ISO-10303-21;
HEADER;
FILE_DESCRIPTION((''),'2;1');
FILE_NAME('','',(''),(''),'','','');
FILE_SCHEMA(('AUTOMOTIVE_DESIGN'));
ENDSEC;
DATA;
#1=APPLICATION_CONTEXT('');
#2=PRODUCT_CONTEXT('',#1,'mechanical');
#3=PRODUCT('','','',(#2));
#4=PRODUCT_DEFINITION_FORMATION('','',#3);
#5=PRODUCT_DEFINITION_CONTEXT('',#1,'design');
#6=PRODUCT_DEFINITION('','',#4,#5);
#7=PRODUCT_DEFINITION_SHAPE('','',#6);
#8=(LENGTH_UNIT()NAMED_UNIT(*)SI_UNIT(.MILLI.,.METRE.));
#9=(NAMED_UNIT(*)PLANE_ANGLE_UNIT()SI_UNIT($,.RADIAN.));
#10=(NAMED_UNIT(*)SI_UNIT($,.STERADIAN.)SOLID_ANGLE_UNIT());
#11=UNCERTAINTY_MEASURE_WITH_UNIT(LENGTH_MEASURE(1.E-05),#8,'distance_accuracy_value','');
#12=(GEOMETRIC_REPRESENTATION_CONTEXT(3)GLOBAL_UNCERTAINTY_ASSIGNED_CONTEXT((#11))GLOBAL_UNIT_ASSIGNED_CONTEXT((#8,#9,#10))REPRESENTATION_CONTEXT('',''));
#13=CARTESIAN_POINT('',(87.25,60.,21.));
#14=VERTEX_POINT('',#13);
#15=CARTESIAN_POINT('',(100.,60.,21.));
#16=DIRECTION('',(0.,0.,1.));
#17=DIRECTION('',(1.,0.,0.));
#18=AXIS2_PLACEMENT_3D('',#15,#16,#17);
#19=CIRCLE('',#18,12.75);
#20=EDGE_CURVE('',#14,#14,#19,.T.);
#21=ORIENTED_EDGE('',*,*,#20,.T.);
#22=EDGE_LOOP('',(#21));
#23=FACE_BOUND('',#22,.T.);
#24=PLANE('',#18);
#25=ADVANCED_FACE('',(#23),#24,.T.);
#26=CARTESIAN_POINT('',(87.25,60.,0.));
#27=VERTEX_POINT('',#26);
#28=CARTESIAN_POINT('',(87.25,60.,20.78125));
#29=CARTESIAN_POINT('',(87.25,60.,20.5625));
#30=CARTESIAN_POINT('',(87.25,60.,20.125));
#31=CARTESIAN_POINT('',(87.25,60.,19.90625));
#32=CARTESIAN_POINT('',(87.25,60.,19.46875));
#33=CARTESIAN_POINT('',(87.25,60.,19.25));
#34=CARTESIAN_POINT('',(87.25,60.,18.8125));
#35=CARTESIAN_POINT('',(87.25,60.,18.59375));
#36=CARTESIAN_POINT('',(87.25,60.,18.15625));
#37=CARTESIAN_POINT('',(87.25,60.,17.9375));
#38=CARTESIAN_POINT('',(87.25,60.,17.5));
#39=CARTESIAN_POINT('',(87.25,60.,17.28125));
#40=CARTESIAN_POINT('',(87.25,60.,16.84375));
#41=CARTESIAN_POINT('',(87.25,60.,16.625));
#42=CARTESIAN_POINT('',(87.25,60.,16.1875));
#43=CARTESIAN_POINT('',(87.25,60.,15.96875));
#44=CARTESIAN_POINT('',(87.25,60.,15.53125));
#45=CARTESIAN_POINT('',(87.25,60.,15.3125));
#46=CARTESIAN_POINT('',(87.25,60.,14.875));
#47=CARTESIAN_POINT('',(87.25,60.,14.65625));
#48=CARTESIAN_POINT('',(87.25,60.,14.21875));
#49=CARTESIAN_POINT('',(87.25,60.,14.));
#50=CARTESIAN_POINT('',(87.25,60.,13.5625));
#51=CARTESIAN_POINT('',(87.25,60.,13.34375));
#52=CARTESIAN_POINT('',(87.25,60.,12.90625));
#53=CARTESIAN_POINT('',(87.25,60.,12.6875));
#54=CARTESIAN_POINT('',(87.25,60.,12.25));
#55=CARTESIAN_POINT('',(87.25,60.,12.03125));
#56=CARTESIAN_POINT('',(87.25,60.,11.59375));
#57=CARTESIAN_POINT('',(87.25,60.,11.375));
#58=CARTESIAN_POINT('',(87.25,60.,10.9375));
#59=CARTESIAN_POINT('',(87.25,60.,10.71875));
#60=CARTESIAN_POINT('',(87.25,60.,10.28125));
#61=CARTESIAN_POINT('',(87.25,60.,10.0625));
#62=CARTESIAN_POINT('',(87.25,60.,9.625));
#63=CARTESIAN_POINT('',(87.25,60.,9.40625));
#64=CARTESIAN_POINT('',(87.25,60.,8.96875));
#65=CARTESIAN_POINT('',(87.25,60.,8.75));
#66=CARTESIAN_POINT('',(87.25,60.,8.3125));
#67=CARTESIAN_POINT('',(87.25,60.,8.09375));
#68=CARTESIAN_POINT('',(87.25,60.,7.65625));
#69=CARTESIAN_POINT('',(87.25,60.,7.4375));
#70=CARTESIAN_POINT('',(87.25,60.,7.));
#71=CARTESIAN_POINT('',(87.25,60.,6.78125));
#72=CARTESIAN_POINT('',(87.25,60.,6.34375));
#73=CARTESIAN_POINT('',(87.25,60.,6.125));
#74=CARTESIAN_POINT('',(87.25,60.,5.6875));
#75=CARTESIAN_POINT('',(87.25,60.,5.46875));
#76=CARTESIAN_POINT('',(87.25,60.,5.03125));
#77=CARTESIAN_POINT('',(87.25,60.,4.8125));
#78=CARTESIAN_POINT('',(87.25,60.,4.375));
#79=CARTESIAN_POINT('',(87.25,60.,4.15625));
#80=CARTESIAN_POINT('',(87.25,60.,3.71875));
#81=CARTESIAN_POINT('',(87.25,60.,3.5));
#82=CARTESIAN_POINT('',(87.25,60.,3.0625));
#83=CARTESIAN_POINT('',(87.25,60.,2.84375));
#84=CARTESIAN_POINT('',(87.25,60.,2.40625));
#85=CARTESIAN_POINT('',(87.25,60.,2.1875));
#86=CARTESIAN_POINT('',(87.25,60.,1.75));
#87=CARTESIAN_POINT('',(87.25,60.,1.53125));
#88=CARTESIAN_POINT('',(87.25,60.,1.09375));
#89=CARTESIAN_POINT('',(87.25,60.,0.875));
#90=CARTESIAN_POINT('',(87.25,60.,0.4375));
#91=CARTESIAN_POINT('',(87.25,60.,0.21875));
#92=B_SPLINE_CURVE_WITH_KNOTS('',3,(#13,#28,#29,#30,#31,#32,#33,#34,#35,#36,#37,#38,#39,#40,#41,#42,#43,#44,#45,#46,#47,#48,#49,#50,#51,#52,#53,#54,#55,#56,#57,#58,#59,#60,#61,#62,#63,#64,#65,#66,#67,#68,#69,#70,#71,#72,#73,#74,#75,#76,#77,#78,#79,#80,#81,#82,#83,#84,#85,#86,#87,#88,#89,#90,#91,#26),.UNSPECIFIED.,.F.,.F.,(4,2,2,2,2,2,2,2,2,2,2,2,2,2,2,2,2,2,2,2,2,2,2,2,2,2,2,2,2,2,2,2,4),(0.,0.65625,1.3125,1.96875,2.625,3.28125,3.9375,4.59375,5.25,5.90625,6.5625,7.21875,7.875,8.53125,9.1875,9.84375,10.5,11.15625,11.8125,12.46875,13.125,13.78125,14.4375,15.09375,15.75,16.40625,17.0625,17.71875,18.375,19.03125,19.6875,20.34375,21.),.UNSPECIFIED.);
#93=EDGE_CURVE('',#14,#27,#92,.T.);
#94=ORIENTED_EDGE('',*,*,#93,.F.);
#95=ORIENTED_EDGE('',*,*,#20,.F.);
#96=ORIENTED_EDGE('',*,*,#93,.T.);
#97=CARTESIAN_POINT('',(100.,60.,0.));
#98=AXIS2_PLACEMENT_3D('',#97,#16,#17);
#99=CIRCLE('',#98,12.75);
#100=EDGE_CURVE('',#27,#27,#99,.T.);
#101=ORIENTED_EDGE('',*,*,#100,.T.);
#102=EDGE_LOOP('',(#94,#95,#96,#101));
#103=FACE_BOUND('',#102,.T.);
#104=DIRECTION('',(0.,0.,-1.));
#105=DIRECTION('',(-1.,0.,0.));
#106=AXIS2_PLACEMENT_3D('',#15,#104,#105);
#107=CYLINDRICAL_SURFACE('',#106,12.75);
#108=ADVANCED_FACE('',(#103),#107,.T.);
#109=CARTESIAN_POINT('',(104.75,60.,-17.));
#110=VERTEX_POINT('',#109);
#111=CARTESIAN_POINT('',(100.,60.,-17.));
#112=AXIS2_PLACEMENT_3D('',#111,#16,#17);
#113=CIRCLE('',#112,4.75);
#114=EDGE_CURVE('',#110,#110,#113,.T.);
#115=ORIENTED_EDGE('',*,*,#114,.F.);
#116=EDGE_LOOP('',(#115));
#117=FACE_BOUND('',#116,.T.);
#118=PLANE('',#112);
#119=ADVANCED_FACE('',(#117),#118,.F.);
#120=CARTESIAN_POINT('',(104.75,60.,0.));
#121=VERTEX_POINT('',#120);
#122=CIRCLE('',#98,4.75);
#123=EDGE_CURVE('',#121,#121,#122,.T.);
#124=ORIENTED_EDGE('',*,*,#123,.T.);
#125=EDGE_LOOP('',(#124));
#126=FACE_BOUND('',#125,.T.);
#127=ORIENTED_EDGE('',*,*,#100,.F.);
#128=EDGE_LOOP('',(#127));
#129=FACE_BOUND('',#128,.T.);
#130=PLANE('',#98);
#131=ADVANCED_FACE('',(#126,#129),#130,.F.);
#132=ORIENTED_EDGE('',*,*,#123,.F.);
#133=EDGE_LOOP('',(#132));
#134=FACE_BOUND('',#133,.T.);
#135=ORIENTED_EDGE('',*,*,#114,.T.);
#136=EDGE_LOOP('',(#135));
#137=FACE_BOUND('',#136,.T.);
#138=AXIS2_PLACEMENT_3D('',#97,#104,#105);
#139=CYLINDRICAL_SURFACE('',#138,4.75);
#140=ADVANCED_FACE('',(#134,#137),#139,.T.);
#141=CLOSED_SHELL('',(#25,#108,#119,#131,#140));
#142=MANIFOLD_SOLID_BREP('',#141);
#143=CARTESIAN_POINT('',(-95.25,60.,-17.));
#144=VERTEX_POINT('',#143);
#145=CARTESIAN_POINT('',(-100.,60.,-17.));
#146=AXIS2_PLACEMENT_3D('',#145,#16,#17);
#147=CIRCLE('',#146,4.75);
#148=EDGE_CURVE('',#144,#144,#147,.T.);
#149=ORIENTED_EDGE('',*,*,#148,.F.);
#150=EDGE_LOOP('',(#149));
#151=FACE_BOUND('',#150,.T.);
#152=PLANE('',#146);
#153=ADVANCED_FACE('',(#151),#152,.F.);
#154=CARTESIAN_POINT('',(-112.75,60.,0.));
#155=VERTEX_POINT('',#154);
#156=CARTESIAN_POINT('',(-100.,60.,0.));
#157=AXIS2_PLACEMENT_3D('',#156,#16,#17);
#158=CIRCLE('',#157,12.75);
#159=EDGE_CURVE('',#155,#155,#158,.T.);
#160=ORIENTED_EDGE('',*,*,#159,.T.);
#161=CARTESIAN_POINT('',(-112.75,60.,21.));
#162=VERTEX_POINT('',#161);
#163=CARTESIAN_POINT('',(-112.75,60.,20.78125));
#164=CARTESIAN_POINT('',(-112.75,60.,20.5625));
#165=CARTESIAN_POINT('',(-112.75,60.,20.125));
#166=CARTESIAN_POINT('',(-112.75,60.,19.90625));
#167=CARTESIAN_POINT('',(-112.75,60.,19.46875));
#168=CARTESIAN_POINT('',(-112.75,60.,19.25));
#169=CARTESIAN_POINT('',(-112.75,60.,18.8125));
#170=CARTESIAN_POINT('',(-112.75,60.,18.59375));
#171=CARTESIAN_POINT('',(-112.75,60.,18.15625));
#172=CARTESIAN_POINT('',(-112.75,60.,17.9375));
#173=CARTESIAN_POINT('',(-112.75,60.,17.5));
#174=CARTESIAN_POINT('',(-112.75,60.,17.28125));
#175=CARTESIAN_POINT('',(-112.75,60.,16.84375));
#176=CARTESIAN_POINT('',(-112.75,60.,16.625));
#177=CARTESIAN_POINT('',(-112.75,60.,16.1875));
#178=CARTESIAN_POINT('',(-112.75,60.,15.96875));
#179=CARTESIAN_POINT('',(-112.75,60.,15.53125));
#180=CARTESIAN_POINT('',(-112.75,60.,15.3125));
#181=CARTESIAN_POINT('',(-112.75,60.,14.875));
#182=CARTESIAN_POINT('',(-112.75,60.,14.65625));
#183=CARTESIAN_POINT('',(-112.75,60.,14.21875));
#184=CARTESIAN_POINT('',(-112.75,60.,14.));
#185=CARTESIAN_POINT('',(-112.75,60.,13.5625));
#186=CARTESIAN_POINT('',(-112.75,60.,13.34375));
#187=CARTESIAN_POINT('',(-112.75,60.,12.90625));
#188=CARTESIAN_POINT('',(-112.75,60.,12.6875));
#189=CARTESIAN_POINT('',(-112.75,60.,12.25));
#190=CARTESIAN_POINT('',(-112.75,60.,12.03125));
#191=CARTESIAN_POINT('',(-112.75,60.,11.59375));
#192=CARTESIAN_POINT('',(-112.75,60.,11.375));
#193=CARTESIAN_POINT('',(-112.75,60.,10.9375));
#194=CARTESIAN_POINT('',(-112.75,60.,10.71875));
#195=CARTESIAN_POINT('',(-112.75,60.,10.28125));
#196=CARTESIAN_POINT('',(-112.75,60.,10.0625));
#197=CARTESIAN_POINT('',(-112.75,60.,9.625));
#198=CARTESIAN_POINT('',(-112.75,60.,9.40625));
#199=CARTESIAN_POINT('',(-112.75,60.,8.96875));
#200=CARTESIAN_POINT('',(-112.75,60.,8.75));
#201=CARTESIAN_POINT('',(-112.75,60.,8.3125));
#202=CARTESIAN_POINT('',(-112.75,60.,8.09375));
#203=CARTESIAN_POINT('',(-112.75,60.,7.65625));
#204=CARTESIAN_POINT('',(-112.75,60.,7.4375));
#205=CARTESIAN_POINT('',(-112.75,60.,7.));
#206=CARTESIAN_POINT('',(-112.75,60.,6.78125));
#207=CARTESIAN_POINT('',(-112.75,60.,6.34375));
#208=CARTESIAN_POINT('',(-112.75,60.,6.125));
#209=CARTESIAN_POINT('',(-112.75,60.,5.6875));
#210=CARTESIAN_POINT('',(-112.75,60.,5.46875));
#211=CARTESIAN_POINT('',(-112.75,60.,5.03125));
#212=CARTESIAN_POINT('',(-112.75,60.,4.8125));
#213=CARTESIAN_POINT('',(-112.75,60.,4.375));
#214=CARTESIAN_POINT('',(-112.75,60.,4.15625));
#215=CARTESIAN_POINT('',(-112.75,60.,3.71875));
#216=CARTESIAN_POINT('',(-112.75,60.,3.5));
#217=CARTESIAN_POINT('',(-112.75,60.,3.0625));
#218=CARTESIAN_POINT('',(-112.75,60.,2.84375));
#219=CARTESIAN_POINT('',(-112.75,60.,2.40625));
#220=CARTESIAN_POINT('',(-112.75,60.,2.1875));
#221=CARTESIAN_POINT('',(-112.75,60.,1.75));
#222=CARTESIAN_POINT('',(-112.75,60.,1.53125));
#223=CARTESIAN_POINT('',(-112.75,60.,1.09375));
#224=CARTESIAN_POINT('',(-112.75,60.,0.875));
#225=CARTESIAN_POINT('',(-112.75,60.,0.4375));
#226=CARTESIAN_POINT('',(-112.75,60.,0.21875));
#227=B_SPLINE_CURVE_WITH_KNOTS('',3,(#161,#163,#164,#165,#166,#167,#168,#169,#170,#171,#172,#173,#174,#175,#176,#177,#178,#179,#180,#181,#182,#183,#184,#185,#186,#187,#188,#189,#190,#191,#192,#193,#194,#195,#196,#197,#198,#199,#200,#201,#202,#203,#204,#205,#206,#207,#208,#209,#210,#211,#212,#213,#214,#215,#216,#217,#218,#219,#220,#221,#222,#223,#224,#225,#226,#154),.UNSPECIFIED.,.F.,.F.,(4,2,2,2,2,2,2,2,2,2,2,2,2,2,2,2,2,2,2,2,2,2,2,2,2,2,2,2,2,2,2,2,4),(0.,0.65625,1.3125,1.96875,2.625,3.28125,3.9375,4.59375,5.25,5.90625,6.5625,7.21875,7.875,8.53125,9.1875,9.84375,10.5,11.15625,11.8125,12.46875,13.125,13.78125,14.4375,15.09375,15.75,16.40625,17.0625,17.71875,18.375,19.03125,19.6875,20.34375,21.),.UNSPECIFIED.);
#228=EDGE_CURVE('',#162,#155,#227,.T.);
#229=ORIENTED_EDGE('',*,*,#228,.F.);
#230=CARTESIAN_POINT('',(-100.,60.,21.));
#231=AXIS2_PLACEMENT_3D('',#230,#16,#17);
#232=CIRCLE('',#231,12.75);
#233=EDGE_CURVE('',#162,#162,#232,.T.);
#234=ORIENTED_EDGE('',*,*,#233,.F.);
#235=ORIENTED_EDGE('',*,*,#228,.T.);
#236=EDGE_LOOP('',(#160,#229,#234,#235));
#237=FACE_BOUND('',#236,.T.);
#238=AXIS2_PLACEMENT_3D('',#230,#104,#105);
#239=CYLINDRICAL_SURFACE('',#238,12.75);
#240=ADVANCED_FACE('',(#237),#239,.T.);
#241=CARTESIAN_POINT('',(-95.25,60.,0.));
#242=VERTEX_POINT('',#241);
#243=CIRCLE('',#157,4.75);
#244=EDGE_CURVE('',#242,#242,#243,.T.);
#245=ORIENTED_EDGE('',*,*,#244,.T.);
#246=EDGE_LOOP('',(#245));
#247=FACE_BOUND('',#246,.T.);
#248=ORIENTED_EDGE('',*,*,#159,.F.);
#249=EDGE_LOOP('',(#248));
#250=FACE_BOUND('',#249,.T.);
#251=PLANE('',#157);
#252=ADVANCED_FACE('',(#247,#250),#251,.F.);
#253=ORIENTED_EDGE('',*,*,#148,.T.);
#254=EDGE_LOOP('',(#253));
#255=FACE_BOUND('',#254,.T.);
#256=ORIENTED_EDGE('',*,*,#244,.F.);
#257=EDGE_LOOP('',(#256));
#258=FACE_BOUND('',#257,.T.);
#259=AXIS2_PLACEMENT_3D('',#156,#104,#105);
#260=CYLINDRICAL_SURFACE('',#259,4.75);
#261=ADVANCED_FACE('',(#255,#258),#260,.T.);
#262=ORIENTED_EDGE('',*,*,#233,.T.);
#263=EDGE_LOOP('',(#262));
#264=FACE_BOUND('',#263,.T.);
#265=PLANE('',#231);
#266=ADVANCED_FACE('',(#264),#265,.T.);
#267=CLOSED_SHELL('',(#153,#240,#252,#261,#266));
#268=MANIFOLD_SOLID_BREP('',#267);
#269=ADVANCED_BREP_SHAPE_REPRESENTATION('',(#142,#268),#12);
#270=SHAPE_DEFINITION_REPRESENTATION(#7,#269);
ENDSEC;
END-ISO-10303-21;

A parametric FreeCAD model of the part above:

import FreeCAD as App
import Part
import Sketcher

doc = App.newDocument("Part")
body = doc.addObject("PartDesign::Body", "Body")

# Sketch on XY plane
sketch1 = body.newObject("Sketcher::SketchObject", "Sketch")
sketch1.AttachmentSupport = (doc.getObject("XY_Plane"), [""])
sketch1.MapMode = "FlatFace"
sketch1.addGeometry(Part.Circle(App.Vector(-100, 60, 0), App.Vector(0, 0, 1), 12.75), False)
sketch1.addConstraint([
    Sketcher.Constraint("Diameter", 0, 25.5),
    Sketcher.Constraint("DistanceX", 0, 3, -1, 1, 100.0),
    Sketcher.Constraint("DistanceY", -1, 1, 0, 3, 60.0),
])
pad1 = body.newObject("PartDesign::Pad", "Pad")
pad1.Profile = sketch1
pad1.Length = 21
body2 = doc.addObject("PartDesign::Body", "Body001")

# Sketch on XY plane
sketch2 = body2.newObject("Sketcher::SketchObject", "Sketch001")
sketch2.AttachmentSupport = (doc.getObject("XY_Plane001"), [""])
sketch2.MapMode = "FlatFace"
sketch2.addGeometry(Part.Circle(App.Vector(100, 60, 0), App.Vector(0, 0, 1), 12.75), False)
sketch2.addConstraint([
    Sketcher.Constraint("Diameter", 0, 25.5),
    Sketcher.Constraint("DistanceX", -1, 1, 0, 3, 100.0),
    Sketcher.Constraint("DistanceY", -1, 1, 0, 3, 60.0),
])
pad2 = body2.newObject("PartDesign::Pad", "Pad001")
pad2.Profile = sketch2
pad2.Length = 21
body.AllowCompound = True
doc.recompute()

boolean = body.newObject("PartDesign::Boolean", "Boolean")
boolean.Type = "Fuse"
boolean.addObjects([body2])

# Sketch on XY plane
sketch3 = body.newObject("Sketcher::SketchObject", "Sketch002")
sketch3.AttachmentSupport = (doc.getObject("XY_Plane"), [""])
sketch3.MapMode = "FlatFace"
sketch3.AttachmentOffset = App.Placement(App.Vector(0, 0, -17), App.Rotation())
sketch3.addGeometry([
    Part.Circle(App.Vector(-100, 60, 0), App.Vector(0, 0, 1), 4.75),
    Part.Circle(App.Vector(100, 60, 0), App.Vector(0, 0, 1), 4.75),
], False)
sketch3.addConstraint([
    Sketcher.Constraint("Equal", 0, 1),
    Sketcher.Constraint("Symmetric", 0, 3, 1, 3, -2),
    Sketcher.Constraint("Diameter", 0, 9.5),
    Sketcher.Constraint("DistanceX", 0, 3, -1, 1, 100.0),
    Sketcher.Constraint("DistanceY", -1, 1, 0, 3, 60.0),
])
pad3 = body.newObject("PartDesign::Pad", "Pad002")
pad3.Profile = sketch3
pad3.Length = 17

doc.recompute()
